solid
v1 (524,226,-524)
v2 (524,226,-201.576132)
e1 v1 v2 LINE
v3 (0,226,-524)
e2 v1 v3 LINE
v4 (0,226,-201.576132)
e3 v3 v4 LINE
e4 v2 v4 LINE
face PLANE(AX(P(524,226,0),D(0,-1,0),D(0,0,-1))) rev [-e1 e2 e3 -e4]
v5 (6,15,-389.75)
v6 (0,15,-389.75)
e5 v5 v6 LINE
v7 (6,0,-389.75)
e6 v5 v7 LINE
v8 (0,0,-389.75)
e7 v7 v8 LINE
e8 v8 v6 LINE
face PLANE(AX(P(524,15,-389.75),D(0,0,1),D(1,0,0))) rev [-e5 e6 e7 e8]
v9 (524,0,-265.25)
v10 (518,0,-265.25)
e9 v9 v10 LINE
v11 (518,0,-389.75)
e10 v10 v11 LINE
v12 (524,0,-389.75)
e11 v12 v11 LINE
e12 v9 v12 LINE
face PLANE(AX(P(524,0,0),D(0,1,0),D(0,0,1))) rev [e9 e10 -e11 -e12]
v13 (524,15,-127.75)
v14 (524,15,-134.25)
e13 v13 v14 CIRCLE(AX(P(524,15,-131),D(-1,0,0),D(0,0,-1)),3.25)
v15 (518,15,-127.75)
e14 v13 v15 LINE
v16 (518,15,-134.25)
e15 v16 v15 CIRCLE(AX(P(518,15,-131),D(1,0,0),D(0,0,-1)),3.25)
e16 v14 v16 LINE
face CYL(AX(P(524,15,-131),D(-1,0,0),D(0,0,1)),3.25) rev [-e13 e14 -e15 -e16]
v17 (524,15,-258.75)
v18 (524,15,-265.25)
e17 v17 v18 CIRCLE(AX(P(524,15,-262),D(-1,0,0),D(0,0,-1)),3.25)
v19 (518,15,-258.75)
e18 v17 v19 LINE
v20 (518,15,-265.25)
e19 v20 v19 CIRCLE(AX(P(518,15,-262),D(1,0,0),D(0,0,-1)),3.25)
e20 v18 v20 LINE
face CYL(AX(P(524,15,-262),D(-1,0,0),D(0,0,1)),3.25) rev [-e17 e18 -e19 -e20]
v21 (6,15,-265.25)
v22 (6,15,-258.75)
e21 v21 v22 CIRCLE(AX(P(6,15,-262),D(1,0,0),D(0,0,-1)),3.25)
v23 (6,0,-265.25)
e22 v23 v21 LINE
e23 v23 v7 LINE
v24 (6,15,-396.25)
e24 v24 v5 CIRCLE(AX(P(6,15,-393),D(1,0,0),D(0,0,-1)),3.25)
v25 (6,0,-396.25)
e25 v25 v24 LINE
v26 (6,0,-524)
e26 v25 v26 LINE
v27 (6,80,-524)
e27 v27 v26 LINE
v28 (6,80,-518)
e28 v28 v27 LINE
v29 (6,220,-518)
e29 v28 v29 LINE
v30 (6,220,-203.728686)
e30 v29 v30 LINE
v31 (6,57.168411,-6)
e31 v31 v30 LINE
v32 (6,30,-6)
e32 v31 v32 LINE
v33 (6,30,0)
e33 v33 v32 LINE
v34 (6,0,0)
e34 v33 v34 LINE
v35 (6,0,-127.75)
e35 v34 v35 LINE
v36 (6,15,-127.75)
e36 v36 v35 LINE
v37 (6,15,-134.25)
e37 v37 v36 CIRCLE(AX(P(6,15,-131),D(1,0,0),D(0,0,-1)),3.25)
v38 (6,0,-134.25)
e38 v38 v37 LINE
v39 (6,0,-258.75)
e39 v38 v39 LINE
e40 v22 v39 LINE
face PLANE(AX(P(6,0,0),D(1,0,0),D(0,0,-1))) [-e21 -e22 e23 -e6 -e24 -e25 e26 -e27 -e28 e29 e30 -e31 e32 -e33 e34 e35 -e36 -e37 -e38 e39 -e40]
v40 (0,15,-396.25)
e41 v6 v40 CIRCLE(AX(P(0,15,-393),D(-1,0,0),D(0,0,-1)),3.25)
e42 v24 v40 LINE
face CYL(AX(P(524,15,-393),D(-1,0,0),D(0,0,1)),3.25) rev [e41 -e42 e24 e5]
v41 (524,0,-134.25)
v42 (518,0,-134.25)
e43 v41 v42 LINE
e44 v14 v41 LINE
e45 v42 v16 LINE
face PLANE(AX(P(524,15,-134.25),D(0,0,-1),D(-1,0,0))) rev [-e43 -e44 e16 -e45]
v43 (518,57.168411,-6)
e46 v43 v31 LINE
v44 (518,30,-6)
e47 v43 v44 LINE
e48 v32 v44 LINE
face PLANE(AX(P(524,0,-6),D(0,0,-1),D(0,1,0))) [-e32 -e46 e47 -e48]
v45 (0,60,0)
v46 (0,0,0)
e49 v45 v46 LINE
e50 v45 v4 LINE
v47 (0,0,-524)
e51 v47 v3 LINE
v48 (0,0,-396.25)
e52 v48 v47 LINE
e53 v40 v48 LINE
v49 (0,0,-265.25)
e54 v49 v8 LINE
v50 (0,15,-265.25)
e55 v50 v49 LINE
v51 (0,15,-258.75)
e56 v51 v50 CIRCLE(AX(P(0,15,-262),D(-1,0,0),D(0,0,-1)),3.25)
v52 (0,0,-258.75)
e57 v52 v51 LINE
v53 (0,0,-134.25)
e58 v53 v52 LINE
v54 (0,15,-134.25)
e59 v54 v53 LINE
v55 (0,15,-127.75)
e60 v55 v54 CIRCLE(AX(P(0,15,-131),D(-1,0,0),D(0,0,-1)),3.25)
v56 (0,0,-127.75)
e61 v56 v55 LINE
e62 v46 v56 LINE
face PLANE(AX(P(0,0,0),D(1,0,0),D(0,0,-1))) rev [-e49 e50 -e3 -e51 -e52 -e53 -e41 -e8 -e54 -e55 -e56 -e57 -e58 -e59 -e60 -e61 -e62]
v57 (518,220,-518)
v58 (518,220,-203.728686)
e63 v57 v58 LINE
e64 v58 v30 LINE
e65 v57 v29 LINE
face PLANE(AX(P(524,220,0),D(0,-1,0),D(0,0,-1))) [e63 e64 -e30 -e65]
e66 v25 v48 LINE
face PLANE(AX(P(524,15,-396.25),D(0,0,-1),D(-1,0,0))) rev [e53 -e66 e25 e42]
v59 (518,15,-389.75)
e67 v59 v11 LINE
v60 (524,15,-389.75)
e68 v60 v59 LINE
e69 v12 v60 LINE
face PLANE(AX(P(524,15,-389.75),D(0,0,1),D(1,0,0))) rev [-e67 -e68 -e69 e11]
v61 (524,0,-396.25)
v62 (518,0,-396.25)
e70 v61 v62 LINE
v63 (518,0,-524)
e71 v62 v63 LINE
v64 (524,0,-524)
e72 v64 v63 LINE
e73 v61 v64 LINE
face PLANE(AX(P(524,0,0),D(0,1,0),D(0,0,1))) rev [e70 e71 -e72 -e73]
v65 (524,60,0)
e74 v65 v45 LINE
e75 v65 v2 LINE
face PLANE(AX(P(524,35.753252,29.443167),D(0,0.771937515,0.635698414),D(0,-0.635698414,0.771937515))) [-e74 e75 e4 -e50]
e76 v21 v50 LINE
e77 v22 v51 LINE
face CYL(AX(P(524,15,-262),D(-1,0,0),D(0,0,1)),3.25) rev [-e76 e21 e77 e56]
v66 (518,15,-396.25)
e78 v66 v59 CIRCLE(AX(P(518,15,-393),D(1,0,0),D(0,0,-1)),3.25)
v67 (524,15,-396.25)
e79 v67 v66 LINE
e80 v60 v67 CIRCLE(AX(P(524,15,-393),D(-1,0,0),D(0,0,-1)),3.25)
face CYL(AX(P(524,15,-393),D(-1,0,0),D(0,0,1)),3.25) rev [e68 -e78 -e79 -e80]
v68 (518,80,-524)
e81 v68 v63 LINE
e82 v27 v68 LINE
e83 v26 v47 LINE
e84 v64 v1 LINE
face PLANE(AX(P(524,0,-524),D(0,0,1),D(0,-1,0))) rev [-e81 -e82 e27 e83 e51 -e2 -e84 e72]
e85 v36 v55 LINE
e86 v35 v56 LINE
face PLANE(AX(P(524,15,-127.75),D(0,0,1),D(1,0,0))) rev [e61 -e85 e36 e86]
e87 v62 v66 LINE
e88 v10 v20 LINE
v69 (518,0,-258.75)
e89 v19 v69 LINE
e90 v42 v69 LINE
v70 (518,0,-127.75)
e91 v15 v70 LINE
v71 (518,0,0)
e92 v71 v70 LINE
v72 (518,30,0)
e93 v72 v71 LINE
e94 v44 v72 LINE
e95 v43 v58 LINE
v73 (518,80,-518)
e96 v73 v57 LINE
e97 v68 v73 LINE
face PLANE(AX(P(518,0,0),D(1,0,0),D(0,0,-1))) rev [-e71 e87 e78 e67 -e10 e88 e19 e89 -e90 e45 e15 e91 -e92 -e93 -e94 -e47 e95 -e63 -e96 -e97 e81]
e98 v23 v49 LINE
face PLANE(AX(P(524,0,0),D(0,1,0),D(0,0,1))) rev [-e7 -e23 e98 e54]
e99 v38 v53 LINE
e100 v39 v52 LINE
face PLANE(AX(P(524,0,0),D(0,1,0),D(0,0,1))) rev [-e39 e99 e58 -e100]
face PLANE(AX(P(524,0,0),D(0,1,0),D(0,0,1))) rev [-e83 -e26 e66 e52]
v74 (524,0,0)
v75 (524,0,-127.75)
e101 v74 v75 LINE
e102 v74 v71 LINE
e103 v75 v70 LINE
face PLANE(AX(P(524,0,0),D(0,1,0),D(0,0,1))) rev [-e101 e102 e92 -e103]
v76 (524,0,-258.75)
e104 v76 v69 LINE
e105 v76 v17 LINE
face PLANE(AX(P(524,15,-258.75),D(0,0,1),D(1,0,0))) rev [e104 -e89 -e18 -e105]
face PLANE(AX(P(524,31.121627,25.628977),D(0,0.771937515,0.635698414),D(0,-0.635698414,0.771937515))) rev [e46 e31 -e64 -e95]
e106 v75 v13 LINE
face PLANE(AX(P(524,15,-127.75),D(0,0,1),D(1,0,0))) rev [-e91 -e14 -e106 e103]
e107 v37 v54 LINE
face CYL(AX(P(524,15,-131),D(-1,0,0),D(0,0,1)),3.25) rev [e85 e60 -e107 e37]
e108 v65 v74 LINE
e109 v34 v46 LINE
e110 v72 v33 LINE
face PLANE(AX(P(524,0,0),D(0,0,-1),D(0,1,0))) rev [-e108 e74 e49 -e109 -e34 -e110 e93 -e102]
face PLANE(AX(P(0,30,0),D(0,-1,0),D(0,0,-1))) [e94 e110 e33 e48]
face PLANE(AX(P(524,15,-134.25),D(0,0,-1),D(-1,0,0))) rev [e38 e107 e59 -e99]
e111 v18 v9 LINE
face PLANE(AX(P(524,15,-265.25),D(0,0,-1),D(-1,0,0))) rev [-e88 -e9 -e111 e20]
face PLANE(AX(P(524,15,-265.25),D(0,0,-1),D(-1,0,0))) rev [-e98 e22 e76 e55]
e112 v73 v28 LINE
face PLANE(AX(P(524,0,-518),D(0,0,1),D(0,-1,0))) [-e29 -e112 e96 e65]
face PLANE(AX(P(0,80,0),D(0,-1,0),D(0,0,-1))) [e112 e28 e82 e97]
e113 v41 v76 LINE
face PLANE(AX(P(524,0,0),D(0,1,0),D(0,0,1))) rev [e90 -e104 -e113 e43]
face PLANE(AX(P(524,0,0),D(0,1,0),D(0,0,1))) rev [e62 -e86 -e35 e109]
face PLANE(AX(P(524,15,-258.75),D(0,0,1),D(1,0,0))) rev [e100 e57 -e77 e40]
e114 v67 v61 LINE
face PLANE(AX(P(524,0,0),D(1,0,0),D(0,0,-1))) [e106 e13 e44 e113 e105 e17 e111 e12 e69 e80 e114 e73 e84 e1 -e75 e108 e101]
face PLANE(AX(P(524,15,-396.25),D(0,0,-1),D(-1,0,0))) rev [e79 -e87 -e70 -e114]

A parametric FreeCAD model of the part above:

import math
import FreeCAD as App
import Part
import Sketcher

V = App.Vector


def faces_at(feature, points):
    """Names of the faces that lie closest to the given points."""
    faces = feature.Shape.Faces
    near = lambda p: min(range(len(faces)), key=lambda i: faces[i].distToShape(Part.Vertex(*p))[0])
    return sorted({f"Face{near(p) + 1}" for p in points})


def add_polygon(sketch, points):
    """Adds a closed chain of lines whose ends are joined by coincident constraints."""
    first, n = sketch.GeometryCount, len(points)
    for a, b in zip(points, points[1:] + points[:1]):
        sketch.addGeometry(Part.LineSegment(App.Vector(*a, 0), App.Vector(*b, 0)), False)
    for i in range(n):
        sketch.addConstraint(Sketcher.Constraint("Coincident", first + i, 2, first + (i + 1) % n, 1))

doc = App.newDocument("Part")
body = doc.addObject("PartDesign::Body", "Body")

sketch1 = body.newObject("Sketcher::SketchObject", "Sketch")
sketch1.AttachmentSupport = (doc.getObject("YZ_Plane"), [""])
sketch1.MapMode = "FlatFace"
add_polygon(sketch1, [(0, -524), (226, -524), (226, -202), (60, 0), (0, 0)])
sketch1.addConstraint([
    Sketcher.Constraint("Horizontal", 0),
    Sketcher.Constraint("Vertical", 1),
    Sketcher.Constraint("Horizontal", 3),
    Sketcher.Constraint("Vertical", 4),
    Sketcher.Constraint("Coincident", 3, 2, -1, 1),
    Sketcher.Constraint("DistanceX", 0, 1, 0, 2, 226.0),
    Sketcher.Constraint("DistanceX", 3, 2, 3, 1, 60.0),
    Sketcher.Constraint("DistanceY", 4, 2, 4, 1, 524.0),
    Sketcher.Constraint("DistanceY", 1, 1, 1, 2, 322.423868),
])
pad1 = body.newObject("PartDesign::Pad", "Pad")
pad1.Profile = sketch1
pad1.Length = 524
doc.recompute()

thickness = body.newObject("PartDesign::Thickness", "Thickness")
thickness.Base = (pad1, faces_at(pad1, [(262, 0, -262)]))
thickness.Value = 6
thickness.Reversed = True
thickness.Join = "Intersection"

sketch2 = body.newObject("Sketcher::SketchObject", "Sketch001")
sketch2.AttachmentSupport = (doc.getObject("XZ_Plane"), [""])
sketch2.MapMode = "FlatFace"
add_polygon(sketch2, [(6, 0), (6, -6), (518, -6), (518, 0)])
sketch2.addConstraint([
    Sketcher.Constraint("Vertical", 0),
    Sketcher.Constraint("Horizontal", 1),
    Sketcher.Constraint("Vertical", 2),
    Sketcher.Constraint("Horizontal", 3),
    Sketcher.Constraint("PointOnObject", 2, 2, -1),
    Sketcher.Constraint("DistanceX", 1, 1, 1, 2, 512.0),
    Sketcher.Constraint("DistanceY", 0, 2, 0, 1, 6.0),
    Sketcher.Constraint("DistanceX", -1, 1, 0, 2, 6.0),
])
pocket1 = body.newObject("PartDesign::Pocket", "Pocket")
pocket1.Profile = sketch2
pocket1.Length = 30

sketch3 = body.newObject("Sketcher::SketchObject", "Sketch002")
sketch3.AttachmentSupport = (doc.getObject("XZ_Plane"), [""])
sketch3.MapMode = "FlatFace"
add_polygon(sketch3, [(6, -518), (6, -524), (518, -524), (518, -518)])
sketch3.addConstraint([
    Sketcher.Constraint("Vertical", 0),
    Sketcher.Constraint("Horizontal", 1),
    Sketcher.Constraint("Vertical", 2),
    Sketcher.Constraint("Horizontal", 3),
    Sketcher.Constraint("DistanceX", 1, 1, 1, 2, 512.0),
    Sketcher.Constraint("DistanceY", 0, 2, 0, 1, 6.0),
    Sketcher.Constraint("DistanceX", -1, 1, 0, 2, 6.0),
    Sketcher.Constraint("DistanceY", 0, 2, -1, 1, 524.0),
])
pocket2 = body.newObject("PartDesign::Pocket", "Pocket001")
pocket2.Profile = sketch3
pocket2.Length = 80

sketch4 = body.newObject("Sketcher::SketchObject", "Sketch003")
sketch4.AttachmentSupport = (doc.getObject("YZ_Plane"), [""])
sketch4.MapMode = "FlatFace"
sketch4.addGeometry([
    Part.LineSegment(V(15, -396.2, 0), V(0, -396.2, 0)),
    Part.LineSegment(V(0, -396.2, 0), V(0, -389.8, 0)),
    Part.LineSegment(V(0, -389.8, 0), V(15, -389.8, 0)),
    Part.ArcOfCircle(Part.Circle(V(15, -393, 0), V(0, 0, 1), 3.2), math.radians(-90), math.radians(90)),
    Part.LineSegment(V(15, -265.2, 0), V(0, -265.2, 0)),
    Part.LineSegment(V(0, -265.2, 0), V(0, -258.8, 0)),
    Part.LineSegment(V(0, -258.8, 0), V(15, -258.8, 0)),
    Part.ArcOfCircle(Part.Circle(V(15, -262, 0), V(0, 0, 1), 3.2), math.radians(-90), math.radians(90)),
    Part.LineSegment(V(0, -134.2, 0), V(0, -127.8, 0)),
    Part.LineSegment(V(0, -127.8, 0), V(15, -127.8, 0)),
    Part.ArcOfCircle(Part.Circle(V(15, -131, 0), V(0, 0, 1), 3.2), math.radians(-90), math.radians(90)),
    Part.LineSegment(V(15, -134.2, 0), V(0, -134.2, 0)),
], False)
sketch4.addConstraint([
    Sketcher.Constraint("Coincident", 0, 2, 1, 1),
    Sketcher.Constraint("Coincident", 1, 2, 2, 1),
    Sketcher.Constraint("Tangent", 2, 2, 3, 2),
    Sketcher.Constraint("Tangent", 3, 1, 0, 1),
    Sketcher.Constraint("Coincident", 4, 2, 5, 1),
    Sketcher.Constraint("Coincident", 5, 2, 6, 1),
    Sketcher.Constraint("Tangent", 6, 2, 7, 2),
    Sketcher.Constraint("Tangent", 7, 1, 4, 1),
    Sketcher.Constraint("Coincident", 8, 2, 9, 1),
    Sketcher.Constraint("Tangent", 9, 2, 10, 2),
    Sketcher.Constraint("Tangent", 10, 1, 11, 1),
    Sketcher.Constraint("Coincident", 11, 2, 8, 1),
    Sketcher.Constraint("Horizontal", 0),
    Sketcher.Constraint("Vertical", 1),
    Sketcher.Constraint("Horizontal", 2),
    Sketcher.Constraint("Horizontal", 4),
    Sketcher.Constraint("Vertical", 5),
    Sketcher.Constraint("Horizontal", 6),
    Sketcher.Constraint("Vertical", 8),
    Sketcher.Constraint("Horizontal", 9),
    Sketcher.Constraint("Horizontal", 11),
    Sketcher.Constraint("Equal", 3, 7),
    Sketcher.Constraint("Equal", 7, 10),
    Sketcher.Constraint("PointOnObject", 0, 2, -2),
    Sketcher.Constraint("PointOnObject", 4, 2, -2),
    Sketcher.Constraint("PointOnObject", 8, 2, -2),
    Sketcher.Constraint("Vertical", 3, 3, 7, 3),
    Sketcher.Constraint("Vertical", 7, 3, 10, 3),
    Sketcher.Constraint("DistanceX", 0, 2, 0, 1, 15.0),
    Sketcher.Constraint("Radius", 3, 3.25),
    Sketcher.Constraint("DistanceY", 3, 3, -1, 1, 393.0),
    Sketcher.Constraint("DistanceY", 7, 3, -1, 1, 262.0),
    Sketcher.Constraint("DistanceY", 10, 3, -1, 1, 131.0),
])
pocket3 = body.newObject("PartDesign::Pocket", "Pocket002")
pocket3.Profile = sketch4
pocket3.Type = "ThroughAll"
pocket3.Reversed = True

doc.recompute()
